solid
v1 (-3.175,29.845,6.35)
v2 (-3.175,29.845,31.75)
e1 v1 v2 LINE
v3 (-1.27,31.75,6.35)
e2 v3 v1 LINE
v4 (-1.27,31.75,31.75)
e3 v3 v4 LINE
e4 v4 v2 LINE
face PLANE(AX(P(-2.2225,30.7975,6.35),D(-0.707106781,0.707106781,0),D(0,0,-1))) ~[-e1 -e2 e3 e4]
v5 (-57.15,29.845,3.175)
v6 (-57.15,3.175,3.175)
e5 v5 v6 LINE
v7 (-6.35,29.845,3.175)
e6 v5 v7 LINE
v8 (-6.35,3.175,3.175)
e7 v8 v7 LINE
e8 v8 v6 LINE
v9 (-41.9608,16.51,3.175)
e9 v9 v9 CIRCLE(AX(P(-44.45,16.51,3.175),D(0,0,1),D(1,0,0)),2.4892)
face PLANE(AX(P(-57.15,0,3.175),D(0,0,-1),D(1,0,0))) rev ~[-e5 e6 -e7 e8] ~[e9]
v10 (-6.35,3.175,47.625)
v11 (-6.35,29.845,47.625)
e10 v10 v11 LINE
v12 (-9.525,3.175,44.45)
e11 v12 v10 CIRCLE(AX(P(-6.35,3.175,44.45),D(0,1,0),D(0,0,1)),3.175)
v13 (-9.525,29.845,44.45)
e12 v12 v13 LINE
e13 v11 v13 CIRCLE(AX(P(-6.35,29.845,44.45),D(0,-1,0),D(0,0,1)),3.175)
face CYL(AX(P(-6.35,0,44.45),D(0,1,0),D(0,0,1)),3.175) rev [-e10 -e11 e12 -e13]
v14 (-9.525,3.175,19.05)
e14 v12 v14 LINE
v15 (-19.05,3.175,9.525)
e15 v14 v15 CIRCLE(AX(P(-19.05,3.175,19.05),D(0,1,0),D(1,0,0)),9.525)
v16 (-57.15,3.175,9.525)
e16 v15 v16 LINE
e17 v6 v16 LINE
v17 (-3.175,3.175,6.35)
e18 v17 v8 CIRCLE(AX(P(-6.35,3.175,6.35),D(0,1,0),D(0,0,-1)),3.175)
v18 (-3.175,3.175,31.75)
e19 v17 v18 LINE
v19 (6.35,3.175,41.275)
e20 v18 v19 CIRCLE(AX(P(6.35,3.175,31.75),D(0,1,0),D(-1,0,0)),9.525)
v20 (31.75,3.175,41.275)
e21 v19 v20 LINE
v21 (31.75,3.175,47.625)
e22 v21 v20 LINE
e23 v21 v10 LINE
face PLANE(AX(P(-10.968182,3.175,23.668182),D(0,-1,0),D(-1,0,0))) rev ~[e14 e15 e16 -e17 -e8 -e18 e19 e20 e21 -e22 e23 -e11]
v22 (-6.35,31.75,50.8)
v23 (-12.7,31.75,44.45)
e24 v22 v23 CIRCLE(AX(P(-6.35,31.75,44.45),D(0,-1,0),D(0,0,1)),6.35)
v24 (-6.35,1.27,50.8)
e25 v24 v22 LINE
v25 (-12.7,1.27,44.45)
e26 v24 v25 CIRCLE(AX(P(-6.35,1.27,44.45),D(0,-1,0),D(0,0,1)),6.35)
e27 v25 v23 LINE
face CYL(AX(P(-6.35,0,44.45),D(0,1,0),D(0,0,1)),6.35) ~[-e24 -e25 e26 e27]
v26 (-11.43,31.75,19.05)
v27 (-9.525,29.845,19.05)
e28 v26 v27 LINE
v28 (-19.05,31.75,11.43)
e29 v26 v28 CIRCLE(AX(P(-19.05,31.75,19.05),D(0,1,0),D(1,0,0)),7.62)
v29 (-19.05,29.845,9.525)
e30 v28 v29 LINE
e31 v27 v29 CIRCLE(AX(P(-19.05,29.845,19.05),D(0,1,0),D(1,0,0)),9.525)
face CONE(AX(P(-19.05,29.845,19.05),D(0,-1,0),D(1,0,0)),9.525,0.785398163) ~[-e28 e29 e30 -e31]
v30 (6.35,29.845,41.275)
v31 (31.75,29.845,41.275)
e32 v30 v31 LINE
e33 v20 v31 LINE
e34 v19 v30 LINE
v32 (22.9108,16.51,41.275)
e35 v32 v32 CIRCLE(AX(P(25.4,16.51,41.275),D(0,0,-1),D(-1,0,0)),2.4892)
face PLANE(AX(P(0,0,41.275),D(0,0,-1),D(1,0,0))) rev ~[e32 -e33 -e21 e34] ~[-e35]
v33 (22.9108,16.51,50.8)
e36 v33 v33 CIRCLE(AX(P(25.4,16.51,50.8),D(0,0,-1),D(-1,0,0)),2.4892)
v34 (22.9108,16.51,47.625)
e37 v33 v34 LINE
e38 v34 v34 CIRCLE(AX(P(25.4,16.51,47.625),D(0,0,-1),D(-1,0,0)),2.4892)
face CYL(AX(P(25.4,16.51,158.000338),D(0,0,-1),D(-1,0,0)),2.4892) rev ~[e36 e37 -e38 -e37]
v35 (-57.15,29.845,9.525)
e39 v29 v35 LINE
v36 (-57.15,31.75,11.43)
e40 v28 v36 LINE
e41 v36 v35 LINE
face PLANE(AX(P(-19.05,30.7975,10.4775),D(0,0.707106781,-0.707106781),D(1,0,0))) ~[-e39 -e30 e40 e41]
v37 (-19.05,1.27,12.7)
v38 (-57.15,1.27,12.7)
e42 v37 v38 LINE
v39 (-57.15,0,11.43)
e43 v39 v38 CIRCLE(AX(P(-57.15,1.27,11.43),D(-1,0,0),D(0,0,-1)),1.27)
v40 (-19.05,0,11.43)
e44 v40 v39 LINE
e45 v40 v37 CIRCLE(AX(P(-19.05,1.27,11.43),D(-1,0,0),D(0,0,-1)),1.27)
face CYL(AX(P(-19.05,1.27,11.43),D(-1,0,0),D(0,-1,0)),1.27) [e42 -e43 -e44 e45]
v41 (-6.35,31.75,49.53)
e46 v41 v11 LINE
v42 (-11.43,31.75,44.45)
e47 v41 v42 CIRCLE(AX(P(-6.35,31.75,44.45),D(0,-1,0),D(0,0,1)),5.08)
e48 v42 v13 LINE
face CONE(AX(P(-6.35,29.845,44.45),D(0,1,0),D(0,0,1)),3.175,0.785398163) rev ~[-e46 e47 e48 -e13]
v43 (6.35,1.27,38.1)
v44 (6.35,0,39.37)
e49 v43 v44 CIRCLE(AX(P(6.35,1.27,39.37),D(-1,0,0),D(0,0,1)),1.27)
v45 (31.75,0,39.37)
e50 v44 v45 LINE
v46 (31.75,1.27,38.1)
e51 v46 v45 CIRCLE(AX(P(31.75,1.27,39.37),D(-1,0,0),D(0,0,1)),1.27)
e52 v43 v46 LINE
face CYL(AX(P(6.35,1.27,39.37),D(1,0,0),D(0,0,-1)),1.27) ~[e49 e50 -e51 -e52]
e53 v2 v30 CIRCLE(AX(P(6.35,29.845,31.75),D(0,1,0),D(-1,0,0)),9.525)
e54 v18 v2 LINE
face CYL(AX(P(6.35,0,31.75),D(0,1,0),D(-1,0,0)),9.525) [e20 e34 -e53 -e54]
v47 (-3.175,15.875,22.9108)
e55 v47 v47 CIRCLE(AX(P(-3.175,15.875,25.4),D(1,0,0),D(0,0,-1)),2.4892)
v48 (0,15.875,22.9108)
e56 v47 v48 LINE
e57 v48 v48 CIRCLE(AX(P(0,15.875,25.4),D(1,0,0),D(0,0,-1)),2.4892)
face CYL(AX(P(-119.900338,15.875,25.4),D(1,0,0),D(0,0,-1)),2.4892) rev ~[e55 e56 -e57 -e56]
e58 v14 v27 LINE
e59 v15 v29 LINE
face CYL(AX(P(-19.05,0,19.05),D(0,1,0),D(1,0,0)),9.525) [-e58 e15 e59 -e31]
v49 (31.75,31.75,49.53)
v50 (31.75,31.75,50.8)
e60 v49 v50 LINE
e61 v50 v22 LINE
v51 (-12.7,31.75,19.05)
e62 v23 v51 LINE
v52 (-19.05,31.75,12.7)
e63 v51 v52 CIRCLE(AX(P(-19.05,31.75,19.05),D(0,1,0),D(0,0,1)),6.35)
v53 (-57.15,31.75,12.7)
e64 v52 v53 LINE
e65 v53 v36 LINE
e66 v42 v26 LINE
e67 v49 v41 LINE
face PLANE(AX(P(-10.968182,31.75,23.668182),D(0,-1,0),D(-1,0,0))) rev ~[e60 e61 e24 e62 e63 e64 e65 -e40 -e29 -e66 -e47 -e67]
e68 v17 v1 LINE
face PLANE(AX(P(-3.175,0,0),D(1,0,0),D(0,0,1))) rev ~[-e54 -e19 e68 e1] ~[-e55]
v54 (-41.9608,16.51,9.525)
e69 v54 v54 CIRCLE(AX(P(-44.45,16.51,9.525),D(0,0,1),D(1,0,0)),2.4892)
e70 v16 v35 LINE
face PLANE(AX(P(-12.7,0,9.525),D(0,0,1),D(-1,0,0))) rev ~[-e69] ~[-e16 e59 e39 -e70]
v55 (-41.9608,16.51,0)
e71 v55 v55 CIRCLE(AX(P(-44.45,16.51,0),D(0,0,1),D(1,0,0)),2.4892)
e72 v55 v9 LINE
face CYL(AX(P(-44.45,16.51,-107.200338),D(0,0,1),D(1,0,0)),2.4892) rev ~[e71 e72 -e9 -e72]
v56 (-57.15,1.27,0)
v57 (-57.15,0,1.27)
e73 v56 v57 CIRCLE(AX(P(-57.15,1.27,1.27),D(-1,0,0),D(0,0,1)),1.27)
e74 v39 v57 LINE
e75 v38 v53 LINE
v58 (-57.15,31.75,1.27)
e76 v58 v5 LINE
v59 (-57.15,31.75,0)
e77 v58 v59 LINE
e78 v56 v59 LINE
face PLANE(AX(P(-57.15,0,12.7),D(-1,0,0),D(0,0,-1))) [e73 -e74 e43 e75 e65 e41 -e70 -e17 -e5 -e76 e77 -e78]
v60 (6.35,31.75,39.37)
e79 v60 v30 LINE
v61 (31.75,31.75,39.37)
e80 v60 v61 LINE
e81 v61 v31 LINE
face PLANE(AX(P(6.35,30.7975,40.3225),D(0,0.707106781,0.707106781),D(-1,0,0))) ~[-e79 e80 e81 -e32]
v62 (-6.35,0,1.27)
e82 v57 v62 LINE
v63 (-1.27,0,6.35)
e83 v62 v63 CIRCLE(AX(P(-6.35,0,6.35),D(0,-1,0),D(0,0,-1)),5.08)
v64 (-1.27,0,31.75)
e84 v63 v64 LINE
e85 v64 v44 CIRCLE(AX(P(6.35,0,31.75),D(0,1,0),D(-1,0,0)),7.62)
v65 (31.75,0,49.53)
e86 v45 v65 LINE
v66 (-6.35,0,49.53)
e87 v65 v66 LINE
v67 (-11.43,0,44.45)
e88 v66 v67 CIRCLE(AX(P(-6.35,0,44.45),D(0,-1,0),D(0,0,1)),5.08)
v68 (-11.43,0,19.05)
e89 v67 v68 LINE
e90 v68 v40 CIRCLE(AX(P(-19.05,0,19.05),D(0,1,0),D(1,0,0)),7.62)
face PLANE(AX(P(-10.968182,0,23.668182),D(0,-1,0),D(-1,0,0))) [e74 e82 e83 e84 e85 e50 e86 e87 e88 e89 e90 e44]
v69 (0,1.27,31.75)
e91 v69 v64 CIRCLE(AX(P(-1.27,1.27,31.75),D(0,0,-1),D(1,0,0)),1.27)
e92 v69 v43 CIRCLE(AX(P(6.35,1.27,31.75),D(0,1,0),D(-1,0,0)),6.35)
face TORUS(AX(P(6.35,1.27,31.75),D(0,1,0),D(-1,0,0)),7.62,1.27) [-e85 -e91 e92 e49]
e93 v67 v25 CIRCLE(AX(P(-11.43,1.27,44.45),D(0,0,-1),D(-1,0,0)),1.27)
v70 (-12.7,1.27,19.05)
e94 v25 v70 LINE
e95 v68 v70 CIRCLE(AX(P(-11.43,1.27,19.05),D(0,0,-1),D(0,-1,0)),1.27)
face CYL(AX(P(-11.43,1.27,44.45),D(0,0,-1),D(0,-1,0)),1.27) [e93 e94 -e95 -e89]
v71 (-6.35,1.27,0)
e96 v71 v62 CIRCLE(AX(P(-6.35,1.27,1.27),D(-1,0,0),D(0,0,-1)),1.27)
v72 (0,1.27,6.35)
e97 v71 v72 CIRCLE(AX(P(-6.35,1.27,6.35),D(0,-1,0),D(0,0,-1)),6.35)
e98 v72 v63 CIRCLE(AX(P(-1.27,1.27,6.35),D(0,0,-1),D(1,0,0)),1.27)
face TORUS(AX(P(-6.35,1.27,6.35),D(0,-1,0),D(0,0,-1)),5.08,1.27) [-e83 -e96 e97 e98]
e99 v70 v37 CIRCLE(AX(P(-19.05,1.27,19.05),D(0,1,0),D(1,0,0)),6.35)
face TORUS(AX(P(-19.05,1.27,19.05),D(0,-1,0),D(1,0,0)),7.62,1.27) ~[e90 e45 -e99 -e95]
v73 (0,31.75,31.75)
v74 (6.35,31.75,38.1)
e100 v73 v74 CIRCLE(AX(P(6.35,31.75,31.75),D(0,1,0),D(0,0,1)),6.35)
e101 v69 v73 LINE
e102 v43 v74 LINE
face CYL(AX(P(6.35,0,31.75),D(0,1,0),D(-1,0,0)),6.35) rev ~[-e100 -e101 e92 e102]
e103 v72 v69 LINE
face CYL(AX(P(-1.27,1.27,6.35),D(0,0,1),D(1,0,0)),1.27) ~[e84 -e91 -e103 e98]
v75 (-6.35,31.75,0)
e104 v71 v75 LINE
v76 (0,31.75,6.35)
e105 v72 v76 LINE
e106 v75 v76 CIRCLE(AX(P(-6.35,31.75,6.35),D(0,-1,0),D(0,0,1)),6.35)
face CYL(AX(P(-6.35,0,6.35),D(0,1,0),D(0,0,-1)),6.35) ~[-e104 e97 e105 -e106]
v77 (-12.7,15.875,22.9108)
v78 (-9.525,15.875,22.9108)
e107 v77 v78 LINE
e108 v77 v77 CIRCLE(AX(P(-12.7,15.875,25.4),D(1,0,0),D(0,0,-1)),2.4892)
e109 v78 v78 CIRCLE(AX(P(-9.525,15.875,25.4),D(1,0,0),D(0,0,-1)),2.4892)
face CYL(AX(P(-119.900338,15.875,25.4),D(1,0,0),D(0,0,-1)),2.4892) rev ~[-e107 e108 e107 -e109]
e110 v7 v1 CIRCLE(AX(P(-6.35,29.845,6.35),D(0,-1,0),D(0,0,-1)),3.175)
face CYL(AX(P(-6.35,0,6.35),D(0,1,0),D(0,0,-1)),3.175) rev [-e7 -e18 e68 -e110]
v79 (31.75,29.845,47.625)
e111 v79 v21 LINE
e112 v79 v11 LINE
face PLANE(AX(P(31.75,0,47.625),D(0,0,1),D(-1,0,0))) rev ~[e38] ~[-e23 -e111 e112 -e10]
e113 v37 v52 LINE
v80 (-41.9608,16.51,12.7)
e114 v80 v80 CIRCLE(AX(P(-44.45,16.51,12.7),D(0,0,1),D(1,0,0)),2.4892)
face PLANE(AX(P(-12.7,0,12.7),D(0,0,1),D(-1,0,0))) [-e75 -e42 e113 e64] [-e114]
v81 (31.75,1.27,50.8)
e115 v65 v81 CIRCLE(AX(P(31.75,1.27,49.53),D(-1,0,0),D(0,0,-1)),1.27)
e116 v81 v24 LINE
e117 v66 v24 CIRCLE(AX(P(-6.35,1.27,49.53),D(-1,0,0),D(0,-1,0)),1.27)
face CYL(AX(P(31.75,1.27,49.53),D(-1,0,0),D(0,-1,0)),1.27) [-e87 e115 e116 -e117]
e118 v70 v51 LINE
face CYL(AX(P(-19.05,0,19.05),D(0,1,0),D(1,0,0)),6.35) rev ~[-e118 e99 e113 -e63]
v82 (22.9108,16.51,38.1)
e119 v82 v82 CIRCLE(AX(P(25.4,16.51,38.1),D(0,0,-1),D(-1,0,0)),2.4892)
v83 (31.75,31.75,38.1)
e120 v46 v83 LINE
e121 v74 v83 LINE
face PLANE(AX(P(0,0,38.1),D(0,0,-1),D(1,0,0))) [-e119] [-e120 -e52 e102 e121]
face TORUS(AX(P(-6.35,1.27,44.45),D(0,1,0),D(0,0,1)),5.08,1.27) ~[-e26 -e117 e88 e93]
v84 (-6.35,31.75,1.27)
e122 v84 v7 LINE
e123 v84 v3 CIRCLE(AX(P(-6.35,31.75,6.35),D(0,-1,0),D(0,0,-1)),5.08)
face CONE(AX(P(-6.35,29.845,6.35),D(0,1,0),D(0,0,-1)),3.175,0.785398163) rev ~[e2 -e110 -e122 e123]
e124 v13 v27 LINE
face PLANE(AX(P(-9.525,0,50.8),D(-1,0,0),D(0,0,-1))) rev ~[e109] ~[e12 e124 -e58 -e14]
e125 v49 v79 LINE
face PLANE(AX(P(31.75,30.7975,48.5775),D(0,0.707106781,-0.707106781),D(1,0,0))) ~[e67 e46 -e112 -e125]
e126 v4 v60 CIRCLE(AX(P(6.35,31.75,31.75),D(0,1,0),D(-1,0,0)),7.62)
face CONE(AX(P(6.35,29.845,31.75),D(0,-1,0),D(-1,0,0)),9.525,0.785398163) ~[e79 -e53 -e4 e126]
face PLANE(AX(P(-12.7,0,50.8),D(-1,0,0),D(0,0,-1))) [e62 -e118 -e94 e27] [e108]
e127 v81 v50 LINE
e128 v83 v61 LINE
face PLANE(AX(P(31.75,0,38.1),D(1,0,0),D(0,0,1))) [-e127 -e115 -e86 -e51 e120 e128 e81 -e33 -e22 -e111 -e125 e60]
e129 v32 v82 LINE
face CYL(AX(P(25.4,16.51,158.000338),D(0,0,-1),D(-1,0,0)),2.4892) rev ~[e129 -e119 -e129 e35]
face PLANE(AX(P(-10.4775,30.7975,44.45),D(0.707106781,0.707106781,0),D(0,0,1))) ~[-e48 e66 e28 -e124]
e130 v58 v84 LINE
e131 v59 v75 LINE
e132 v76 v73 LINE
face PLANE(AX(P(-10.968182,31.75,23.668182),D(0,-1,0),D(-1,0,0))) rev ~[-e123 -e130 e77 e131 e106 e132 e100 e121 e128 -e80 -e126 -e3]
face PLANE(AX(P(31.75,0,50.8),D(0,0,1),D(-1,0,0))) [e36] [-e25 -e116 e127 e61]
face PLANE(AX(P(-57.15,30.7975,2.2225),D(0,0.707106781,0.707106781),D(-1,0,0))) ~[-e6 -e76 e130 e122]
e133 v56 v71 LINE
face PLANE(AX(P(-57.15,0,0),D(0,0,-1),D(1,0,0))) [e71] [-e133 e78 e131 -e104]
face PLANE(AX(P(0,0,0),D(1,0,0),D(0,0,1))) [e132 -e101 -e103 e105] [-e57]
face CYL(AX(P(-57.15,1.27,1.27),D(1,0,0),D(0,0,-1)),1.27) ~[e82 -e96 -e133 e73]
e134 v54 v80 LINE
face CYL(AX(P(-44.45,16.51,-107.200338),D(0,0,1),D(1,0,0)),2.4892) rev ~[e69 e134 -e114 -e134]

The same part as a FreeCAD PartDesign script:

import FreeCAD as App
import Part
import Sketcher
Q = App.Units.Quantity


def edges_at(feature, points):
    """Names of the edges that pass closest to the given points."""
    edges = feature.Shape.Edges
    near = lambda p: min(range(len(edges)), key=lambda i: edges[i].distToShape(Part.Vertex(*p))[0])
    return sorted({f"Edge{near(p) + 1}" for p in points})


def faces_at(feature, points):
    """Names of the faces that lie closest to the given points."""
    faces = feature.Shape.Faces
    near = lambda p: min(range(len(faces)), key=lambda i: faces[i].distToShape(Part.Vertex(*p))[0])
    return sorted({f"Face{near(p) + 1}" for p in points})


def add_polygon(sketch, points):
    """Adds a closed chain of lines whose ends are joined by coincident constraints."""
    first, n = sketch.GeometryCount, len(points)
    for a, b in zip(points, points[1:] + points[:1]):
        sketch.addGeometry(Part.LineSegment(App.Vector(*a, 0), App.Vector(*b, 0)), False)
    for i in range(n):
        sketch.addConstraint(Sketcher.Constraint("Coincident", first + i, 2, first + (i + 1) % n, 1))

doc = App.newDocument("Part")
params = doc.addObject("Spreadsheet::Sheet", "Params")
for row, (alias, value) in enumerate([
    ("sketch1_height", "0.5 in"),
    ("sketch1_height2", "1.5 in"),
    ("sketch1_width", "2.25 in"),
    ("sketch1_width2", "1.75 in"),
    ("pad1_length", "1.25 in"),
    ("fillet_radius", "0.25 in"),
    ("thickness_wall", "0.125 in"),
    ("fillet2_radius", "0.05 in"),
    ("chamfer_size", "0.075 in"),
    ("sketch2_diameter", "0.196 in"),
    ("hole_diameter", "0.196 in"),
    ("sketch3_diameter", "0.196 in"),
    ("hole2_diameter", "0.196 in"),
    ("sketch4_diameter", "0.196 in"),
    ("hole3_diameter", "0.196 in"),
], start=1):
    params.set(f"A{row}", alias)
    params.set(f"B{row}", "=" + value)
    params.setAlias(f"B{row}", alias)

body = doc.addObject("PartDesign::Body", "Body")

sketch1 = body.newObject("Sketcher::SketchObject", "Sketch")
sketch1.AttachmentSupport = (doc.getObject("XZ_Plane"), [""])
sketch1.MapMode = "FlatFace"
add_polygon(sketch1, [(0, 0), (-57, 0), (-57, 13), (-13, 13), (-13, 51), (32, 51), (32, 38), (0, 38)])
sketch1.addConstraint([
    Sketcher.Constraint("Horizontal", 0),
    Sketcher.Constraint("Vertical", 1),
    Sketcher.Constraint("Horizontal", 2),
    Sketcher.Constraint("Vertical", 3),
    Sketcher.Constraint("Horizontal", 4),
    Sketcher.Constraint("Vertical", 5),
    Sketcher.Constraint("Horizontal", 6),
    Sketcher.Constraint("Vertical", 7),
    Sketcher.Constraint("Coincident", 7, 2, -1, 1),
    Sketcher.Constraint("Equal", 2, 4),
    Sketcher.Constraint("Equal", 1, 5),
    Sketcher.Constraint("DistanceY", 1, 1, 1, 2, Q("0.5 in")),
    Sketcher.Constraint("DistanceY", 3, 1, 3, 2, Q("1.5 in")),
    Sketcher.Constraint("DistanceX", 0, 2, 0, 1, Q("2.25 in")),
    Sketcher.Constraint("DistanceX", 2, 1, 2, 2, Q("1.75 in")),
])
sketch1.setExpression("Constraints[19]", "Params.sketch1_height")
sketch1.setExpression("Constraints[20]", "Params.sketch1_height2")
sketch1.setExpression("Constraints[21]", "Params.sketch1_width")
sketch1.setExpression("Constraints[22]", "Params.sketch1_width2")
pad1 = body.newObject("PartDesign::Pad", "Pad")
pad1.Profile = sketch1
pad1.setExpression("Length", "Params.pad1_length")
pad1.Reversed = True
doc.recompute()

fillet = body.newObject("PartDesign::Fillet", "Fillet")
fillet.Base = (pad1, edges_at(pad1, [
    (0, 15.875, 0),
    (0, 15.875, 38.1),
    (-12.7, 15.875, 50.8),
    (-12.7, 15.875, 12.7),
]))
fillet.setExpression("Radius", "Params.fillet_radius")
doc.recompute()

thickness = body.newObject("PartDesign::Thickness", "Thickness")
thickness.Base = (fillet, faces_at(fillet, [(-12.7, 31.75, 25.4), (31.75, 15.875, 44.45), (-57.15, 15.875, 6.35)]))
thickness.setExpression("Value", "Params.thickness_wall")
thickness.Reversed = True
thickness.Join = "Intersection"
doc.recompute()

fillet2 = body.newObject("PartDesign::Fillet", "Fillet001")
fillet2.Base = (thickness, edges_at(thickness, [
    (-38.1, 0, 12.7),
    (12.7, 0, 50.8),
    (-31.75, 0, 0),
    (0, 0, 19.05),
    (-12.7, 0, 31.75),
    (-1.86, 0, 1.86),
    (-10.84, 0, 48.94),
    (-14.56, 0, 14.56),
    (1.86, 0, 36.24),
    (19.05, 0, 38.1),
]))
fillet2.setExpression("Radius", "Params.fillet2_radius")
doc.recompute()

chamfer = body.newObject("PartDesign::Chamfer", "Chamfer")
chamfer.Base = (fillet2, edges_at(fillet2, [
    (-9.525, 31.75, 31.75),
    (-8.595, 31.75, 46.695),
    (12.7, 31.75, 47.625),
    (19.05, 31.75, 41.275),
    (-0.385, 31.75, 38.485),
    (-3.175, 31.75, 19.05),
    (-4.105, 31.75, 4.105),
    (-31.75, 31.75, 3.175),
    (-38.1, 31.75, 9.525),
    (-12.315, 31.75, 12.315),
]))
chamfer.setExpression("Size", "Params.chamfer_size")

sketch2 = body.newObject("Sketcher::SketchObject", "Sketch001")
sketch2.AttachmentSupport = (doc.getObject("YZ_Plane"), [""])
sketch2.MapMode = "FlatFace"
sketch2.AttachmentOffset = App.Placement(App.Vector(0, 0, -0.5 * 25.4), App.Rotation())
sketch2.addGeometry(Part.Circle(App.Vector(15.9, 25.4, 0), App.Vector(0, 0, 1), 2.5), False)
sketch2.addConstraint([
    Sketcher.Constraint("Diameter", 0, Q("0.196 in")),
    Sketcher.Constraint("DistanceY", -1, 1, 0, 3, Q("1 in")),
    Sketcher.Constraint("DistanceX", -1, 1, 0, 3, Q("0.625 in")),
])
sketch2.setExpression("Constraints[0]", "Params.sketch2_diameter")
doc.recompute()
hole = body.newObject("PartDesign::Hole", "Hole")
hole.Profile = sketch2
hole.ThreadType = "None"
hole.setExpression("Diameter", "Params.hole_diameter")
hole.DepthType = "ThroughAll"
hole.Reversed = True

sketch3 = body.newObject("Sketcher::SketchObject", "Sketch002")
sketch3.AttachmentSupport = (doc.getObject("XY_Plane"), [""])
sketch3.MapMode = "FlatFace"
sketch3.addGeometry(Part.Circle(App.Vector(-44.5, 16.5, 0), App.Vector(0, 0, 1), 2.5), False)
sketch3.addConstraint([
    Sketcher.Constraint("Diameter", 0, Q("0.196 in")),
    Sketcher.Constraint("DistanceX", 0, 3, -1, 1, Q("1.75 in")),
    Sketcher.Constraint("DistanceY", -1, 1, 0, 3, Q("0.65 in")),
])
sketch3.setExpression("Constraints[0]", "Params.sketch3_diameter")
doc.recompute()
hole2 = body.newObject("PartDesign::Hole", "Hole001")
hole2.Profile = sketch3
hole2.ThreadType = "None"
hole2.setExpression("Diameter", "Params.hole2_diameter")
hole2.DepthType = "ThroughAll"
hole2.Reversed = True

sketch4 = body.newObject("Sketcher::SketchObject", "Sketch003")
sketch4.AttachmentSupport = (doc.getObject("XY_Plane"), [""])
sketch4.MapMode = "FlatFace"
sketch4.AttachmentOffset = App.Placement(App.Vector(0, 0, 2 * 25.4), App.Rotation())
sketch4.addGeometry(Part.Circle(App.Vector(25.4, 16.5, 0), App.Vector(0, 0, 1), 2.5), False)
sketch4.addConstraint([
    Sketcher.Constraint("Diameter", 0, Q("0.196 in")),
    Sketcher.Constraint("DistanceX", -1, 1, 0, 3, Q("1 in")),
    Sketcher.Constraint("DistanceY", -1, 1, 0, 3, Q("0.65 in")),
])
sketch4.setExpression("Constraints[0]", "Params.sketch4_diameter")
doc.recompute()
hole3 = body.newObject("PartDesign::Hole", "Hole002")
hole3.Profile = sketch4
hole3.ThreadType = "None"
hole3.setExpression("Diameter", "Params.hole3_diameter")
hole3.DepthType = "ThroughAll"

doc.recompute()
